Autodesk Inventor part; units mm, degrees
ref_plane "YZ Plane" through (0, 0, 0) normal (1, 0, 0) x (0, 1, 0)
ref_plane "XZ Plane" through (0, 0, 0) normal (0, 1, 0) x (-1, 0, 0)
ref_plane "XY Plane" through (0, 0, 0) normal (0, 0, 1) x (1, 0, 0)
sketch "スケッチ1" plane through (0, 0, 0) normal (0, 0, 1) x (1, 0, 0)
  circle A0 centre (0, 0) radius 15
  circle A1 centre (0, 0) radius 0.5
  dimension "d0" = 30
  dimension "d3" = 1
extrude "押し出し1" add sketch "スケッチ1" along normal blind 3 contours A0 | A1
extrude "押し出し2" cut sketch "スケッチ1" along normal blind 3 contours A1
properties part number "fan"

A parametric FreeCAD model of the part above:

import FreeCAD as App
import Part
import Sketcher
from FreeCAD import Vector

doc = App.newDocument("Part")
body = doc.addObject("PartDesign::Body", "Body")

# Sketch on XY plane
sketch1 = body.newObject("Sketcher::SketchObject", "Sketch")
sketch1.AttachmentSupport = (doc.getObject("XY_Plane"), [""])
sketch1.MapMode = "FlatFace"
sketch1.addGeometry(Part.Circle(Vector(0, 0, 0), Vector(0, 0, 1), 15), False)
sketch1.addConstraint(Sketcher.Constraint("Coincident", 0, 3, -1, 1))
sketch1.addConstraint(Sketcher.Constraint("Diameter", 0, 30.0))
pad1 = body.newObject("PartDesign::Pad", "Pad")
pad1.Profile = sketch1
pad1.Length = 3

# Sketch on XY plane
sketch2 = body.newObject("Sketcher::SketchObject", "Sketch001")
sketch2.AttachmentSupport = (doc.getObject("XY_Plane"), [""])
sketch2.MapMode = "FlatFace"
sketch2.addGeometry(Part.Circle(Vector(0, 0, 0), Vector(0, 0, 1), 0.5), False)
sketch2.addConstraint(Sketcher.Constraint("Coincident", 0, 3, -1, 1))
sketch2.addConstraint(Sketcher.Constraint("Diameter", 0, 1.0))
pocket1 = body.newObject("PartDesign::Pocket", "Pocket")
pocket1.Profile = sketch2
pocket1.Length = 3
pocket1.Reversed = True

doc.recompute()
